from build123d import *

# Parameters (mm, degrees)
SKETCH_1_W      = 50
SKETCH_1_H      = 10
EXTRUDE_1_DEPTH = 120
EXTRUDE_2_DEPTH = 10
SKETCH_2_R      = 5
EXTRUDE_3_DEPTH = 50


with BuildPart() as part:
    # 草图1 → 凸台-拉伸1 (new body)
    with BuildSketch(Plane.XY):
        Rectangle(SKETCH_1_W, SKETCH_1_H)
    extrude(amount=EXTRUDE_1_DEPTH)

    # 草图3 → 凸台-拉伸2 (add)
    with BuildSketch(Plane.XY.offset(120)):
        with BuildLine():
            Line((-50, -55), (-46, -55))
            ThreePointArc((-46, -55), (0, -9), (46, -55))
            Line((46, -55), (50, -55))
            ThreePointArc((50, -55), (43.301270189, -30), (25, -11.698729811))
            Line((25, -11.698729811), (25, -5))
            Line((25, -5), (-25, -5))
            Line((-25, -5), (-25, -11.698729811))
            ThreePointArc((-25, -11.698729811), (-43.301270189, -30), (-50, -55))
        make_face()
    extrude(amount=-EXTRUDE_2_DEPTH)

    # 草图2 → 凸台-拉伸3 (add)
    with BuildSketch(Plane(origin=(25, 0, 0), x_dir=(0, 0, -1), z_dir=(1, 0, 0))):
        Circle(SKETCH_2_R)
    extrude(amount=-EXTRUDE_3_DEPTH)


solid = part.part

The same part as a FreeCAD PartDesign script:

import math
import FreeCAD as App
import Part
import Sketcher

V = App.Vector
Q = App.Units.Quantity


def add_polygon(sketch, points):
    """Adds a closed chain of lines whose ends are joined by coincident constraints."""
    first, n = sketch.GeometryCount, len(points)
    for a, b in zip(points, points[1:] + points[:1]):
        sketch.addGeometry(Part.LineSegment(App.Vector(*a, 0), App.Vector(*b, 0)), False)
    for i in range(n):
        sketch.addConstraint(Sketcher.Constraint("Coincident", first + i, 2, first + (i + 1) % n, 1))

doc = App.newDocument("Part")
body = doc.addObject("PartDesign::Body", "Body")

# Sketch on XY plane
sketch1 = body.newObject("Sketcher::SketchObject", "Sketch")
sketch1.AttachmentSupport = (doc.getObject("XY_Plane"), [""])
sketch1.MapMode = "FlatFace"
add_polygon(sketch1, [(-25, 5), (-25, -5), (25, -5), (25, 5)])  # lines 0-3
sketch1.addConstraint([
    Sketcher.Constraint("Vertical", 0),
    Sketcher.Constraint("Horizontal", 1),
    Sketcher.Constraint("Vertical", 2),
    Sketcher.Constraint("Horizontal", 3),
    Sketcher.Constraint("Symmetric", 0, 2, 2, 2, -1, 1),
    Sketcher.Constraint("DistanceX", 1, 1, 1, 2, Q("50 mm")),
    Sketcher.Constraint("DistanceY", 0, 2, 0, 1, Q("10 mm")),
])
pad1 = body.newObject("PartDesign::Pad", "Pad")
pad1.Profile = sketch1
pad1.Length = 120

# Sketch on XY plane
sketch2 = body.newObject("Sketcher::SketchObject", "Sketch001")
sketch2.AttachmentSupport = (doc.getObject("XY_Plane"), [""])
sketch2.MapMode = "FlatFace"
sketch2.AttachmentOffset = App.Placement(V(0, 0, 120), App.Rotation())
sketch2.addGeometry([
    Part.LineSegment(V(-50, -55, 0), V(-46, -55, 0)),  # 0
    Part.ArcOfCircle(Part.Circle(V(0, -55, 0), V(0, 0, 1), 46), math.radians(0), math.radians(180)),  # 1
    Part.LineSegment(V(46, -55, 0), V(50, -55, 0)),  # 2
    Part.ArcOfCircle(Part.Circle(V(0, -55, 0), V(0, 0, 1), 50), math.radians(0), math.radians(60)),  # 3
    Part.LineSegment(V(25, -11.7, 0), V(25, -5, 0)),  # 4
    Part.LineSegment(V(25, -5, 0), V(-25, -5, 0)),  # 5
    Part.LineSegment(V(-25, -5, 0), V(-25, -11.7, 0)),  # 6
    Part.ArcOfCircle(Part.Circle(V(0, -55, 0), V(0, 0, 1), 50), math.radians(120), math.radians(180)),  # 7
], False)
sketch2.addConstraint([
    Sketcher.Constraint("Coincident", 0, 2, 1, 2),
    Sketcher.Constraint("Coincident", 1, 1, 2, 1),
    Sketcher.Constraint("Coincident", 2, 2, 3, 1),
    Sketcher.Constraint("Coincident", 3, 2, 4, 1),
    Sketcher.Constraint("Coincident", 4, 2, 5, 1),
    Sketcher.Constraint("Coincident", 5, 2, 6, 1),
    Sketcher.Constraint("Coincident", 6, 2, 7, 1),
    Sketcher.Constraint("Coincident", 7, 2, 0, 1),
    Sketcher.Constraint("Horizontal", 0),
    Sketcher.Constraint("Horizontal", 2),
    Sketcher.Constraint("Vertical", 4),
    Sketcher.Constraint("Horizontal", 5),
    Sketcher.Constraint("Vertical", 6),
    Sketcher.Constraint("Coincident", 3, 3, 1, 3),
    Sketcher.Constraint("Coincident", 7, 3, 1, 3),
    Sketcher.Constraint("Equal", 3, 7),
    Sketcher.Constraint("Symmetric", 0, 2, 1, 1, -2),
    Sketcher.Constraint("Horizontal", 7, 3, 0, 2),
    Sketcher.Constraint("Horizontal", 3, 2, 6, 2),
    Sketcher.Constraint("Radius", 1, Q("46 mm")),
    Sketcher.Constraint("Radius", 3, Q("50 mm")),
    Sketcher.Constraint("DistanceX", 5, 2, 5, 1, Q("50 mm")),
    Sketcher.Constraint("DistanceY", 1, 3, -1, 1, Q("55 mm")),
    Sketcher.Constraint("DistanceY", 4, 2, -1, 1, Q("5 mm")),
])
pad2 = body.newObject("PartDesign::Pad", "Pad001")
pad2.Profile = sketch2
pad2.Length = 10
pad2.Reversed = True

# Sketch on YZ plane
sketch3 = body.newObject("Sketcher::SketchObject", "Sketch002")
sketch3.AttachmentSupport = (doc.getObject("YZ_Plane"), [""])
sketch3.MapMode = "FlatFace"
sketch3.AttachmentOffset = App.Placement(V(0, 0, 25), App.Rotation())
sketch3.addGeometry(Part.Circle(V(0, 0, 0), V(0, 0, 1), 5), False)
sketch3.addConstraint([
    Sketcher.Constraint("Coincident", 0, 3, -1, 1),
    Sketcher.Constraint("Diameter", 0, Q("10 mm")),
])
pad3 = body.newObject("PartDesign::Pad", "Pad002")
pad3.Profile = sketch3
pad3.Length = 50
pad3.Reversed = True

doc.recompute()
